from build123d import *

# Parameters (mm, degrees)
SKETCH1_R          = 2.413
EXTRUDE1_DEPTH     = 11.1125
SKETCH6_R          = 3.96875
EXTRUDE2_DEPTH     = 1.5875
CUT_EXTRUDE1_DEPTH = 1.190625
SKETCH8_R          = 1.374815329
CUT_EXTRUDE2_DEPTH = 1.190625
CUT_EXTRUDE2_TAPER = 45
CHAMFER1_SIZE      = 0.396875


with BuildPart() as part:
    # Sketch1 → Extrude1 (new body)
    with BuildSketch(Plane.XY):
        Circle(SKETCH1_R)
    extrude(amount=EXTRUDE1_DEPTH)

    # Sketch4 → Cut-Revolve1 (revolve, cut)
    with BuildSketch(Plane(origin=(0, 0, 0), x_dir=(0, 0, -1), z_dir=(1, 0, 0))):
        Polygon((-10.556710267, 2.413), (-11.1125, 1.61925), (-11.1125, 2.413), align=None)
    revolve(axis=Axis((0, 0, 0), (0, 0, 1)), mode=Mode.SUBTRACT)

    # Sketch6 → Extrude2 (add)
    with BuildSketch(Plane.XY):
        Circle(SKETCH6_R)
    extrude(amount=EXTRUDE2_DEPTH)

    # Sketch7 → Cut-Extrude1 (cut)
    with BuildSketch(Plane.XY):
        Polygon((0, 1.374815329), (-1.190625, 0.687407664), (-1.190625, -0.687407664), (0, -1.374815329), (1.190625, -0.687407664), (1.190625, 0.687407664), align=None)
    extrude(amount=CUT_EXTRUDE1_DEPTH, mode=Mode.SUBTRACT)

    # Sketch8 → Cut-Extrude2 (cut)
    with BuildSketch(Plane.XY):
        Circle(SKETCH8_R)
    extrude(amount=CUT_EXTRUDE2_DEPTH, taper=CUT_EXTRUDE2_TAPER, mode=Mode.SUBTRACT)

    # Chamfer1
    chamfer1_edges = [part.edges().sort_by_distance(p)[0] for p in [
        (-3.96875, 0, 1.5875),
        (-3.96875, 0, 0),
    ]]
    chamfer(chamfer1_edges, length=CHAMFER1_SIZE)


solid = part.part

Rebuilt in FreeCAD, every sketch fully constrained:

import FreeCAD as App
import Part
import Sketcher
Q = App.Units.Quantity


def edges_at(feature, points):
    """Names of the edges that pass closest to the given points."""
    edges = feature.Shape.Edges
    near = lambda p: min(range(len(edges)), key=lambda i: edges[i].distToShape(Part.Vertex(*p))[0])
    return sorted({f"Edge{near(p) + 1}" for p in points})


def add_polygon(sketch, points):
    """Adds a closed chain of lines whose ends are joined by coincident constraints."""
    first, n = sketch.GeometryCount, len(points)
    for a, b in zip(points, points[1:] + points[:1]):
        sketch.addGeometry(Part.LineSegment(App.Vector(*a, 0), App.Vector(*b, 0)), False)
    for i in range(n):
        sketch.addConstraint(Sketcher.Constraint("Coincident", first + i, 2, first + (i + 1) % n, 1))

doc = App.newDocument("Part")
body = doc.addObject("PartDesign::Body", "Body")

sketch1 = doc.addObject("Sketcher::SketchObject", "Sketch")
body.addObject(sketch1)
sketch1.AttachmentSupport = (doc.XY_Plane, [""])
sketch1.MapMode = "FlatFace"
sketch1.addGeometry(Part.Circle(App.Vector(0, 0, 0), App.Vector(0, 0, 1), 2.4), False)
sketch1.addConstraint([
    Sketcher.Constraint("Coincident", 0, 3, -1, 1),
    Sketcher.Constraint("Diameter", 0, Q("0.19 in")),
])
pad1 = doc.addObject("PartDesign::Pad", "Pad")
body.addObject(pad1)
pad1.Profile = sketch1
pad1.Length = Q("0.4375 in")

sketch2 = doc.addObject("Sketcher::SketchObject", "Sketch001")
body.addObject(sketch2)
sketch2.AttachmentSupport = (doc.YZ_Plane, [""])
sketch2.MapMode = "FlatFace"
add_polygon(sketch2, [(1.6, 11.1), (2.4, 10.6), (2.4, 11.1)])
sketch2.addConstraint([
    Sketcher.Constraint("Vertical", 1),
    Sketcher.Constraint("Horizontal", 2),
    Sketcher.Constraint("Angle", 0, Q("-35 deg")),
    Sketcher.Constraint("DistanceX", 2, 2, 2, 1, Q("0.03125 in")),
    Sketcher.Constraint("DistanceX", -1, 1, 0, 2, Q("0.095 in")),
    Sketcher.Constraint("DistanceY", -1, 1, 1, 2, Q("0.4375 in")),
])
groove = doc.addObject("PartDesign::Groove", "Groove")
body.addObject(groove)
groove.Profile = sketch2
groove.ReferenceAxis = (sketch2, ["V_Axis"])
groove.Angle = 360

sketch3 = doc.addObject("Sketcher::SketchObject", "Sketch002")
body.addObject(sketch3)
sketch3.AttachmentSupport = (doc.XY_Plane, [""])
sketch3.MapMode = "FlatFace"
sketch3.addGeometry(Part.Circle(App.Vector(0, 0, 0), App.Vector(0, 0, 1), 4), False)
sketch3.addConstraint([
    Sketcher.Constraint("Coincident", 0, 3, -1, 1),
    Sketcher.Constraint("Diameter", 0, Q("0.3125 in")),
])
pad2 = doc.addObject("PartDesign::Pad", "Pad001")
body.addObject(pad2)
pad2.Profile = sketch3
pad2.Length = Q("0.0625 in")

sketch4 = doc.addObject("Sketcher::SketchObject", "Sketch003")
body.addObject(sketch4)
sketch4.AttachmentSupport = (doc.XY_Plane, [""])
sketch4.MapMode = "FlatFace"
add_polygon(sketch4, [(0, 1.4), (-1.2, 0.7), (-1.2, -0.7), (0, -1.4), (1.2, -0.7), (1.2, 0.7)])
sketch4.addConstraint([
    Sketcher.Constraint("Vertical", 1),
    Sketcher.Constraint("Vertical", 4),
    Sketcher.Constraint("Symmetric", 0, 2, 3, 2, -1, 1),
    Sketcher.Constraint("Symmetric", 2, 2, 5, 2, -1, 1),
    Sketcher.Constraint("PointOnObject", 2, 2, -2),
    Sketcher.Constraint("Parallel", 2, 5),
    Sketcher.Constraint("Horizontal", 1, 2, 3, 2),
    Sketcher.Constraint("Angle", 0, Q("-150 deg")),
    Sketcher.Constraint("DistanceX", 0, 2, -1, 1, Q("0.046875 in")),
    Sketcher.Constraint("DistanceY", 1, 2, 1, 1, Q("1.374815 mm")),
])
pocket1 = doc.addObject("PartDesign::Pocket", "Pocket")
body.addObject(pocket1)
pocket1.Profile = sketch4
pocket1.Length = Q("0.046875 in")
pocket1.Reversed = True

sketch5 = doc.addObject("Sketcher::SketchObject", "Sketch004")
body.addObject(sketch5)
sketch5.AttachmentSupport = (doc.XY_Plane, [""])
sketch5.MapMode = "FlatFace"
sketch5.addGeometry(Part.Circle(App.Vector(0, 0, 0), App.Vector(0, 0, 1), 1.4), False)
sketch5.addConstraint([
    Sketcher.Constraint("Coincident", 0, 3, -1, 1),
    Sketcher.Constraint("Diameter", 0, Q("2.749631 mm")),
])
pocket2 = doc.addObject("PartDesign::Pocket", "Pocket001")
body.addObject(pocket2)
pocket2.Profile = sketch5
pocket2.Length = Q("0.046875 in")
pocket2.Reversed = True
pocket2.TaperAngle = -45
doc.recompute()

chamfer = doc.addObject("PartDesign::Chamfer", "Chamfer")
body.addObject(chamfer)
chamfer.Base = (pocket2, edges_at(pocket2, [(-3.969, 0, 1.587), (-3.969, 0, 0)]))
chamfer.Size = Q("0.015625 in")

doc.recompute()
